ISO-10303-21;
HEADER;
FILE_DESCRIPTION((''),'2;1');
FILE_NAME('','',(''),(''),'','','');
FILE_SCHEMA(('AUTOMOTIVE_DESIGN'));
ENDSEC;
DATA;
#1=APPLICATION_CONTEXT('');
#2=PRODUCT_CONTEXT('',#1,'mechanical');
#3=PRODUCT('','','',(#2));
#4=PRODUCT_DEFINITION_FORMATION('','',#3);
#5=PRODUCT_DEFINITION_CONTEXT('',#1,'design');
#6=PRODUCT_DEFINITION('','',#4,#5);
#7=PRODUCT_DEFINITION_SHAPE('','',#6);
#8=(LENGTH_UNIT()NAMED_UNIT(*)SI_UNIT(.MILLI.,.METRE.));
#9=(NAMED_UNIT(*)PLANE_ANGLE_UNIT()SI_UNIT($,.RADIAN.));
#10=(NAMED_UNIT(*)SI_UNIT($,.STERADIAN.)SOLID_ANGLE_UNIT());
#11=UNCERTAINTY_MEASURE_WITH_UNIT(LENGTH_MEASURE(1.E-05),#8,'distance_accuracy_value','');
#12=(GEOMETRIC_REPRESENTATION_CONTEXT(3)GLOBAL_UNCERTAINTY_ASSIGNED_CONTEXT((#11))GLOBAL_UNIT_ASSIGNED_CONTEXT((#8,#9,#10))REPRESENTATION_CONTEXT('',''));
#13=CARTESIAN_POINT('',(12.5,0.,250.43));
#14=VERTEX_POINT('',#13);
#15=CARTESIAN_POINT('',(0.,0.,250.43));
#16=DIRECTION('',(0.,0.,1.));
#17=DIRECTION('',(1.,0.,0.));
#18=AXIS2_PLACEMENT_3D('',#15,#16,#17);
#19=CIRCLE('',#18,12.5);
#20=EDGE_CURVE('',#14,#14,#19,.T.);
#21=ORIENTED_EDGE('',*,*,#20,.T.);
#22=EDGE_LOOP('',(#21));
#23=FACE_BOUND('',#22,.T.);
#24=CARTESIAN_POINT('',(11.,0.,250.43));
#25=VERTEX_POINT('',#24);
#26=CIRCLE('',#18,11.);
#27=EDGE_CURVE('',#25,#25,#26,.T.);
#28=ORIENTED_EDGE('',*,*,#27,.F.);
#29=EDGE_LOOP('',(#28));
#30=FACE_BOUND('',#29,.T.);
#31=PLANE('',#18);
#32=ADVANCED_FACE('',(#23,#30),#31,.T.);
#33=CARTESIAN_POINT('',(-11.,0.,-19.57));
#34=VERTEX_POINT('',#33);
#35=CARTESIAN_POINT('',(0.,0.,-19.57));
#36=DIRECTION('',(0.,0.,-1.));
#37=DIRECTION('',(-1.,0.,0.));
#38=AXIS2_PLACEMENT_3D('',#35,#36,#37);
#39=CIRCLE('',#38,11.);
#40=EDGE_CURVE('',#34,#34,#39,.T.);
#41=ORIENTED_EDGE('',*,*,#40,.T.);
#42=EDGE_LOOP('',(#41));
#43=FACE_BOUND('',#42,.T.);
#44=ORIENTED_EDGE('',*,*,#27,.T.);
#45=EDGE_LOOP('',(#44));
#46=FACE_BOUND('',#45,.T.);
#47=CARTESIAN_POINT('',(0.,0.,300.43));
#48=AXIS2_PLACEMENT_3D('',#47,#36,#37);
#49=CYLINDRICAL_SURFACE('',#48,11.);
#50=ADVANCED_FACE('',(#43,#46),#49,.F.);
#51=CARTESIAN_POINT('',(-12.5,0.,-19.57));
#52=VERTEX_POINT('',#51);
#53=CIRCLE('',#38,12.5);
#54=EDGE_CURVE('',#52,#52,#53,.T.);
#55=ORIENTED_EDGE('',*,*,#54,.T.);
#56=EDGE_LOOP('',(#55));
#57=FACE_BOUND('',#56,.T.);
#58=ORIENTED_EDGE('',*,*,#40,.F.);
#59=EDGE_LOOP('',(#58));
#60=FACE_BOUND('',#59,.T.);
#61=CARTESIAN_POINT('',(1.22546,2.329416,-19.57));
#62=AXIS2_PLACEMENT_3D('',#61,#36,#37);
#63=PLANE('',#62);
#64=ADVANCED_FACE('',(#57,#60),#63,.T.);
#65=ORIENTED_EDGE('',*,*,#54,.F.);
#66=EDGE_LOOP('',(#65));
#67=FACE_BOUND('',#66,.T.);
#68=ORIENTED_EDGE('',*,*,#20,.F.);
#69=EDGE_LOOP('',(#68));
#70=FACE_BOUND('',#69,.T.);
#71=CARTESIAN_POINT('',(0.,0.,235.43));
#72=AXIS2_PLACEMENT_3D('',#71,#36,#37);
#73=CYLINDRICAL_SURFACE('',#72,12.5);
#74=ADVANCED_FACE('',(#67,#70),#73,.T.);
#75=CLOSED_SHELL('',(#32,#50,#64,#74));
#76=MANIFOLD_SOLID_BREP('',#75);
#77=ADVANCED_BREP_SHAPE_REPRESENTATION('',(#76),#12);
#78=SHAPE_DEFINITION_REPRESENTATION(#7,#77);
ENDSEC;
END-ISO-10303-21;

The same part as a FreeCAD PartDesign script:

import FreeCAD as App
import Part
import Sketcher
from FreeCAD import Vector

doc = App.newDocument("Part")
body = doc.addObject("PartDesign::Body", "Body")

# Sketch on XY plane
sketch1 = body.newObject("Sketcher::SketchObject", "Sketch")
sketch1.AttachmentSupport = (doc.getObject("XY_Plane"), [""])
sketch1.MapMode = "FlatFace"
sketch1.addGeometry(Part.Circle(Vector(0, 0, 0), Vector(0, 0, 1), 12), False)
sketch1.addConstraint(Sketcher.Constraint("Coincident", 0, 3, -1, 1))
sketch1.addConstraint(Sketcher.Constraint("Diameter", 0, 25.0))
pad1 = body.newObject("PartDesign::Pad", "Pad")
pad1.Profile = sketch1
pad1.Length = 235.43

# Sketch on XY plane
sketch2 = body.newObject("Sketcher::SketchObject", "Sketch001")
sketch2.AttachmentSupport = (doc.getObject("XY_Plane"), [""])
sketch2.MapMode = "FlatFace"
sketch2.addGeometry(Part.Circle(Vector(0, 0, 0), Vector(0, 0, 1), 9), False)
sketch2.addConstraint(Sketcher.Constraint("Coincident", 0, 3, -1, 1))
sketch2.addConstraint(Sketcher.Constraint("Diameter", 0, 18.0))
pocket1 = body.newObject("PartDesign::Pocket", "Pocket")
pocket1.Profile = sketch2
pocket1.Length = 235.43
pocket1.Reversed = True

# Sketch on XY plane
sketch3 = body.newObject("Sketcher::SketchObject", "Sketch002")
sketch3.AttachmentSupport = (doc.getObject("XY_Plane"), [""])
sketch3.MapMode = "FlatFace"
sketch3.AttachmentOffset = App.Placement(Vector(0, 0, -15.57), App.Rotation())
sketch3.addGeometry(Part.Circle(Vector(0, 0, 0), Vector(0, 0, 1), 12), False)
sketch3.addConstraint(Sketcher.Constraint("Coincident", 0, 3, -1, 1))
sketch3.addConstraint(Sketcher.Constraint("Diameter", 0, 25.0))
pad2 = body.newObject("PartDesign::Pad", "Pad001")
pad2.Profile = sketch3
pad2.Length = 15.57

# Sketch on XY plane
sketch4 = body.newObject("Sketcher::SketchObject", "Sketch003")
sketch4.AttachmentSupport = (doc.getObject("XY_Plane"), [""])
sketch4.MapMode = "FlatFace"
sketch4.AttachmentOffset = App.Placement(Vector(0, 0, -15.57), App.Rotation())
sketch4.addGeometry(Part.Circle(Vector(0, 0, 0), Vector(0, 0, 1), 9), False)
sketch4.addConstraint(Sketcher.Constraint("Coincident", 0, 3, -1, 1))
sketch4.addConstraint(Sketcher.Constraint("Diameter", 0, 18.0))
pocket2 = body.newObject("PartDesign::Pocket", "Pocket001")
pocket2.Profile = sketch4
pocket2.Length = 20
pocket2.Reversed = True

# Sketch on XY plane
sketch5 = body.newObject("Sketcher::SketchObject", "Sketch004")
sketch5.AttachmentSupport = (doc.getObject("XY_Plane"), [""])
sketch5.MapMode = "FlatFace"
sketch5.AttachmentOffset = App.Placement(Vector(0, 0, -25.5), App.Rotation())
sketch5.addGeometry(Part.Circle(Vector(0, 0, 0), Vector(0, 0, 1), 12), False)
sketch5.addConstraint(Sketcher.Constraint("Coincident", 0, 3, -1, 1))
sketch5.addConstraint(Sketcher.Constraint("Diameter", 0, 25.0))
pad3 = body.newObject("PartDesign::Pad", "Pad002")
pad3.Profile = sketch5
pad3.Length = 9.93

# Sketch on XY plane
sketch6 = body.newObject("Sketcher::SketchObject", "Sketch005")
sketch6.AttachmentSupport = (doc.getObject("XY_Plane"), [""])
sketch6.MapMode = "FlatFace"
sketch6.AttachmentOffset = App.Placement(Vector(0, 0, -25.5), App.Rotation())
sketch6.addGeometry(Part.Circle(Vector(0, 0, 0), Vector(0, 0, 1), 9), False)
sketch6.addConstraint(Sketcher.Constraint("Coincident", 0, 3, -1, 1))
sketch6.addConstraint(Sketcher.Constraint("Diameter", 0, 18.0))
pocket3 = body.newObject("PartDesign::Pocket", "Pocket002")
pocket3.Profile = sketch6
pocket3.Length = 10
pocket3.Reversed = True

# Sketch on XY plane
sketch7 = body.newObject("Sketcher::SketchObject", "Sketch006")
sketch7.AttachmentSupport = (doc.getObject("XY_Plane"), [""])
sketch7.MapMode = "FlatFace"
sketch7.AttachmentOffset = App.Placement(Vector(0, 0, -25.5), App.Rotation())
sketch7.addGeometry(Part.Circle(Vector(0, 0, 0), Vector(0, 0, 1), 27), False)
sketch7.addConstraint(Sketcher.Constraint("Coincident", 0, 3, -1, 1))
sketch7.addConstraint(Sketcher.Constraint("Diameter", 0, 53.716975))
pocket4 = body.newObject("PartDesign::Pocket", "Pocket003")
pocket4.Profile = sketch7
pocket4.Length = 14.93
pocket4.Reversed = True

# Sketch on XY plane
sketch8 = body.newObject("Sketcher::SketchObject", "Sketch007")
sketch8.AttachmentSupport = (doc.getObject("XY_Plane"), [""])
sketch8.MapMode = "FlatFace"
sketch8.AttachmentOffset = App.Placement(Vector(0, 0, -20.5), App.Rotation())
sketch8.addGeometry(Part.Circle(Vector(0, 0, 0), Vector(0, 0, 1), 12), False)
sketch8.addConstraint(Sketcher.Constraint("Coincident", 0, 3, -1, 1))
sketch8.addConstraint(Sketcher.Constraint("Diameter", 0, 25.0))
pad4 = body.newObject("PartDesign::Pad", "Pad003")
pad4.Profile = sketch8
pad4.Length = 9.93

# Sketch on XY plane
sketch9 = body.newObject("Sketcher::SketchObject", "Sketch008")
sketch9.AttachmentSupport = (doc.getObject("XY_Plane"), [""])
sketch9.MapMode = "FlatFace"
sketch9.AttachmentOffset = App.Placement(Vector(0, 0, -20.5), App.Rotation())
sketch9.addGeometry(Part.Circle(Vector(0, 0, 0), Vector(0, 0, 1), 9), False)
sketch9.addConstraint(Sketcher.Constraint("Coincident", 0, 3, -1, 1))
sketch9.addConstraint(Sketcher.Constraint("Diameter", 0, 18.0))
pocket5 = body.newObject("PartDesign::Pocket", "Pocket004")
pocket5.Profile = sketch9
pocket5.Length = 10
pocket5.Reversed = True

# Sketch on XY plane
sketch10 = body.newObject("Sketcher::SketchObject", "Sketch009")
sketch10.AttachmentSupport = (doc.getObject("XY_Plane"), [""])
sketch10.MapMode = "FlatFace"
sketch10.AttachmentOffset = App.Placement(Vector(0, 0, -20.5), App.Rotation())
sketch10.addGeometry(Part.Circle(Vector(-7, 8, 0), Vector(0, 0, 1), 37), False)
sketch10.addConstraint(Sketcher.Constraint("Diameter", 0, 74.386789))
sketch10.addConstraint(Sketcher.Constraint("DistanceY", -1, 1, 0, 3, 7.507889))
sketch10.addConstraint(Sketcher.Constraint("DistanceX", 0, 3, -1, 1, 7.201745))
pocket6 = body.newObject("PartDesign::Pocket", "Pocket005")
pocket6.Profile = sketch10
pocket6.Length = 0.22
pocket6.Reversed = True

# Sketch on XY plane
sketch11 = body.newObject("Sketcher::SketchObject", "Sketch010")
sketch11.AttachmentSupport = (doc.getObject("XY_Plane"), [""])
sketch11.MapMode = "FlatFace"
sketch11.AttachmentOffset = App.Placement(Vector(0, 0, -20.28), App.Rotation())
sketch11.addGeometry(Part.Circle(Vector(1, 2, 0), Vector(0, 0, 1), 43), False)
sketch11.addConstraint(Sketcher.Constraint("Diameter", 0, 86.374377))
sketch11.addConstraint(Sketcher.Constraint("DistanceX", -1, 1, 0, 3, 1.22546))
sketch11.addConstraint(Sketcher.Constraint("DistanceY", -1, 1, 0, 3, 2.329416))
pocket7 = body.newObject("PartDesign::Pocket", "Pocket006")
pocket7.Profile = sketch11
pocket7.Length = 0.71
pocket7.Reversed = True

# Sketch on XY plane
sketch12 = body.newObject("Sketcher::SketchObject", "Sketch011")
sketch12.AttachmentSupport = (doc.getObject("XY_Plane"), [""])
sketch12.MapMode = "FlatFace"
sketch12.AttachmentOffset = App.Placement(Vector(0, 0, 235.43), App.Rotation())
sketch12.addGeometry(Part.Circle(Vector(0, 0, 0), Vector(0, 0, 1), 12), False)
sketch12.addConstraint(Sketcher.Constraint("Coincident", 0, 3, -1, 1))
sketch12.addConstraint(Sketcher.Constraint("Diameter", 0, 25.0))
pad5 = body.newObject("PartDesign::Pad", "Pad004")
pad5.Profile = sketch12
pad5.Length = 15

# Sketch on XY plane
sketch13 = body.newObject("Sketcher::SketchObject", "Sketch012")
sketch13.AttachmentSupport = (doc.getObject("XY_Plane"), [""])
sketch13.MapMode = "FlatFace"
sketch13.AttachmentOffset = App.Placement(Vector(0, 0, 235.43), App.Rotation())
sketch13.addGeometry(Part.Circle(Vector(0, 0, 0), Vector(0, 0, 1), 9), False)
sketch13.addConstraint(Sketcher.Constraint("Coincident", 0, 3, -1, 1))
sketch13.addConstraint(Sketcher.Constraint("Diameter", 0, 18.0))
pocket8 = body.newObject("PartDesign::Pocket", "Pocket007")
pocket8.Profile = sketch13
pocket8.Length = 15
pocket8.Reversed = True

# Sketch on XY plane
sketch14 = body.newObject("Sketcher::SketchObject", "Sketch013")
sketch14.AttachmentSupport = (doc.getObject("XY_Plane"), [""])
sketch14.MapMode = "FlatFace"
sketch14.AttachmentOffset = App.Placement(Vector(0, 0, -19.57), App.Rotation())
sketch14.addGeometry(Part.Circle(Vector(0, 0, 0), Vector(0, 0, 1), 11), False)
sketch14.addConstraint(Sketcher.Constraint("Coincident", 0, 3, -1, 1))
sketch14.addConstraint(Sketcher.Constraint("Diameter", 0, 22.0))
pocket9 = body.newObject("PartDesign::Pocket", "Pocket008")
pocket9.Profile = sketch14
pocket9.Length = 320
pocket9.Reversed = True

doc.recompute()
